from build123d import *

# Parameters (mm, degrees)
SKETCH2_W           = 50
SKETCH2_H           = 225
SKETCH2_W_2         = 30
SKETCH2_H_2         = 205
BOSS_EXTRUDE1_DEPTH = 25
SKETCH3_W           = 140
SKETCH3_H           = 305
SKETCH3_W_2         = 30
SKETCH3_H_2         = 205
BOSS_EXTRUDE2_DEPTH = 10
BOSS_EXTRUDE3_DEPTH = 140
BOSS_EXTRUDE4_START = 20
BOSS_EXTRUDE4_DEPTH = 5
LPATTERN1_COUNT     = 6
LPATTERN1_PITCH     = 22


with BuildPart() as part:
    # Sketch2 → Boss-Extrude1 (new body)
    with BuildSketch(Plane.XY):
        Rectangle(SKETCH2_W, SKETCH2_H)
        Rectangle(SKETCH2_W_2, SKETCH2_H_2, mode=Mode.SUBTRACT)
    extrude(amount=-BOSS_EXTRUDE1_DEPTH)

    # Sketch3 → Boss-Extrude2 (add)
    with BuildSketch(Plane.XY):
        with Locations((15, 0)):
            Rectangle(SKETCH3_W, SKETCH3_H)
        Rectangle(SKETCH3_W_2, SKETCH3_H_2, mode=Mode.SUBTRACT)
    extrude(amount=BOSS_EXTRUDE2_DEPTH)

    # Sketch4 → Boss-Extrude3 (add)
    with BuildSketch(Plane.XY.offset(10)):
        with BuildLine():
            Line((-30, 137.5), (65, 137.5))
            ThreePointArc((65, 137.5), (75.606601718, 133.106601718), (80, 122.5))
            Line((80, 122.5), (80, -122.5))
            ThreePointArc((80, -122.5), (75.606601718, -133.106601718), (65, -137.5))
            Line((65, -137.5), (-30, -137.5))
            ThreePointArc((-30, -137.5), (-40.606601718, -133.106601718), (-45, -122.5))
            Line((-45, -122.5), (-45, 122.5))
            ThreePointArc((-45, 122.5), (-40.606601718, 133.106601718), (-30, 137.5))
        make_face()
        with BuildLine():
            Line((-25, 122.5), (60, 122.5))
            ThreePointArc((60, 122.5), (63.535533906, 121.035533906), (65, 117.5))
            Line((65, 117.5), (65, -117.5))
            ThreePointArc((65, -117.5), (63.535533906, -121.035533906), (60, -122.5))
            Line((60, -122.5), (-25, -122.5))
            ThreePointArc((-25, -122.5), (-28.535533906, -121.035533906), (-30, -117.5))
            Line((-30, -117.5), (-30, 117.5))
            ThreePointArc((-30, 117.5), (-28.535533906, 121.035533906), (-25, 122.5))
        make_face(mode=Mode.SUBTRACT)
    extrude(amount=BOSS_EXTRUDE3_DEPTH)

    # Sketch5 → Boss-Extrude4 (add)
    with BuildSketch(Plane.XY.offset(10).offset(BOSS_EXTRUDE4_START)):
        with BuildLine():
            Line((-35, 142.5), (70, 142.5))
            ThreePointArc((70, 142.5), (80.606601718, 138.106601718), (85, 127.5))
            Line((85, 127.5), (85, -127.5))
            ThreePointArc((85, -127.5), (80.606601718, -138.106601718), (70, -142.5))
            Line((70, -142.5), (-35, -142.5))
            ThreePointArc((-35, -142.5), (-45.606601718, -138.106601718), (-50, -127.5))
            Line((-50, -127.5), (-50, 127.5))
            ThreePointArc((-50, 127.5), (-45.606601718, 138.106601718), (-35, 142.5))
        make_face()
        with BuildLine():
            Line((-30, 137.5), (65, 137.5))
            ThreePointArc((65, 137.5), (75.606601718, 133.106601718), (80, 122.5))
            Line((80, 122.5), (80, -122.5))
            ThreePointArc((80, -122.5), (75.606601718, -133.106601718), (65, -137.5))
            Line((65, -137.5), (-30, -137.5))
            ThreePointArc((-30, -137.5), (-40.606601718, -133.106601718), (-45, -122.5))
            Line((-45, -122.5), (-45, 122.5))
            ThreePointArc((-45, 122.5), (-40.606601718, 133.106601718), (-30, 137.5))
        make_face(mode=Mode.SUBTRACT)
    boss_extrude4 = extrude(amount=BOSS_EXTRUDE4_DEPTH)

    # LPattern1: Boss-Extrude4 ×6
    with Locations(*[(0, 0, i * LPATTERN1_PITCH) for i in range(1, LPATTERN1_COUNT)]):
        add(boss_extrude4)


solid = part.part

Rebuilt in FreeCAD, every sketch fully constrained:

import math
import FreeCAD as App
import Part
import Sketcher
from FreeCAD import Vector


def add_polygon(sketch, points):
    """Adds a closed chain of lines whose ends are joined by coincident constraints."""
    first, n = sketch.GeometryCount, len(points)
    for a, b in zip(points, points[1:] + points[:1]):
        sketch.addGeometry(Part.LineSegment(App.Vector(*a, 0), App.Vector(*b, 0)), False)
    for i in range(n):
        sketch.addConstraint(Sketcher.Constraint("Coincident", first + i, 2, first + (i + 1) % n, 1))

doc = App.newDocument("Part")
body = doc.addObject("PartDesign::Body", "Body")

# Sketch on XY plane
sketch1 = doc.addObject("Sketcher::SketchObject", "Sketch")
body.addObject(sketch1)
sketch1.AttachmentSupport = (doc.XY_Plane, [""])
sketch1.MapMode = "FlatFace"
add_polygon(sketch1, [(-25, 112.5), (-25, -112.5), (25, -112.5), (25, 112.5)])  # lines 0-3
add_polygon(sketch1, [(15, -102.5), (-15, -102.5), (-15, 102.5), (15, 102.5)])  # lines 4-7
sketch1.addConstraint([
    Sketcher.Constraint("Vertical", 0),
    Sketcher.Constraint("Horizontal", 1),
    Sketcher.Constraint("Vertical", 2),
    Sketcher.Constraint("Horizontal", 3),
    Sketcher.Constraint("Horizontal", 4),
    Sketcher.Constraint("Vertical", 5),
    Sketcher.Constraint("Horizontal", 6),
    Sketcher.Constraint("Vertical", 7),
    Sketcher.Constraint("Symmetric", 0, 2, 2, 2, -1, 1),
    Sketcher.Constraint("Symmetric", 4, 2, 6, 2, -1, 1),
    Sketcher.Constraint("DistanceX", 1, 1, 1, 2, 50.0),
    Sketcher.Constraint("DistanceX", 4, 2, 4, 1, 30.0),
    Sketcher.Constraint("DistanceY", 0, 2, 0, 1, 225.0),
    Sketcher.Constraint("DistanceY", 5, 1, 5, 2, 205.0),
])
pad1 = doc.addObject("PartDesign::Pad", "Pad")
body.addObject(pad1)
pad1.Profile = sketch1
pad1.Length = 25
pad1.Reversed = True

# Sketch on XY plane
sketch2 = doc.addObject("Sketcher::SketchObject", "Sketch001")
body.addObject(sketch2)
sketch2.AttachmentSupport = (doc.XY_Plane, [""])
sketch2.MapMode = "FlatFace"
add_polygon(sketch2, [(-55, 152.5), (-55, -152.5), (85, -152.5), (85, 152.5)])  # lines 0-3
add_polygon(sketch2, [(15, -102.5), (-15, -102.5), (-15, 102.5), (15, 102.5)])  # lines 4-7
sketch2.addConstraint([
    Sketcher.Constraint("Vertical", 0),
    Sketcher.Constraint("Horizontal", 1),
    Sketcher.Constraint("Vertical", 2),
    Sketcher.Constraint("Horizontal", 3),
    Sketcher.Constraint("Horizontal", 4),
    Sketcher.Constraint("Vertical", 5),
    Sketcher.Constraint("Horizontal", 6),
    Sketcher.Constraint("Vertical", 7),
    Sketcher.Constraint("Symmetric", 4, 2, 6, 2, -1, 1),
    Sketcher.Constraint("DistanceX", 1, 1, 1, 2, 140.0),
    Sketcher.Constraint("DistanceX", 4, 2, 4, 1, 30.0),
    Sketcher.Constraint("DistanceY", 0, 2, 0, 1, 305.0),
    Sketcher.Constraint("DistanceY", 5, 1, 5, 2, 205.0),
    Sketcher.Constraint("DistanceX", 0, 2, -1, 1, 55.0),
    Sketcher.Constraint("DistanceY", 0, 2, 4, 2, 50.0),
])
pad2 = doc.addObject("PartDesign::Pad", "Pad001")
body.addObject(pad2)
pad2.Profile = sketch2
pad2.Length = 10

# Sketch on XY plane
sketch3 = doc.addObject("Sketcher::SketchObject", "Sketch002")
body.addObject(sketch3)
sketch3.AttachmentSupport = (doc.XY_Plane, [""])
sketch3.MapMode = "FlatFace"
sketch3.AttachmentOffset = App.Placement(Vector(0, 0, 10), App.Rotation())
sketch3.addGeometry([
    Part.LineSegment(Vector(65, 137.5, 0), Vector(-30, 137.5, 0)),  # 0
    Part.ArcOfCircle(Part.Circle(Vector(-30, 122.5, 0), Vector(0, 0, 1), 15), math.radians(90), math.radians(180)),  # 1
    Part.LineSegment(Vector(-45, 122.5, 0), Vector(-45, -122.5, 0)),  # 2
    Part.ArcOfCircle(Part.Circle(Vector(-30, -122.5, 0), Vector(0, 0, 1), 15), math.radians(180), math.radians(270)),  # 3
    Part.LineSegment(Vector(-30, -137.5, 0), Vector(65, -137.5, 0)),  # 4
    Part.ArcOfCircle(Part.Circle(Vector(65, -122.5, 0), Vector(0, 0, 1), 15), math.radians(-90), math.radians(0)),  # 5
    Part.LineSegment(Vector(80, -122.5, 0), Vector(80, 122.5, 0)),  # 6
    Part.ArcOfCircle(Part.Circle(Vector(65, 122.5, 0), Vector(0, 0, 1), 15), math.radians(0), math.radians(90)),  # 7
    Part.LineSegment(Vector(-25, 122.5, 0), Vector(60, 122.5, 0)),  # 8
    Part.ArcOfCircle(Part.Circle(Vector(60, 117.5, 0), Vector(0, 0, 1), 5), math.radians(0), math.radians(90)),  # 9
    Part.LineSegment(Vector(65, 117.5, 0), Vector(65, -117.5, 0)),  # 10
    Part.ArcOfCircle(Part.Circle(Vector(60, -117.5, 0), Vector(0, 0, 1), 5), math.radians(-90), math.radians(0)),  # 11
    Part.LineSegment(Vector(60, -122.5, 0), Vector(-25, -122.5, 0)),  # 12
    Part.ArcOfCircle(Part.Circle(Vector(-25, -117.5, 0), Vector(0, 0, 1), 5), math.radians(180), math.radians(270)),  # 13
    Part.LineSegment(Vector(-30, -117.5, 0), Vector(-30, 117.5, 0)),  # 14
    Part.ArcOfCircle(Part.Circle(Vector(-25, 117.5, 0), Vector(0, 0, 1), 5), math.radians(90), math.radians(180)),  # 15
], False)
sketch3.addConstraint([
    Sketcher.Constraint("Tangent", 0, 2, 1, 1),
    Sketcher.Constraint("Tangent", 1, 2, 2, 1),
    Sketcher.Constraint("Tangent", 2, 2, 3, 1),
    Sketcher.Constraint("Tangent", 3, 2, 4, 1),
    Sketcher.Constraint("Tangent", 4, 2, 5, 1),
    Sketcher.Constraint("Tangent", 5, 2, 6, 1),
    Sketcher.Constraint("Tangent", 6, 2, 7, 1),
    Sketcher.Constraint("Tangent", 7, 2, 0, 1),
    Sketcher.Constraint("Tangent", 8, 2, 9, 2),
    Sketcher.Constraint("Tangent", 9, 1, 10, 1),
    Sketcher.Constraint("Tangent", 10, 2, 11, 2),
    Sketcher.Constraint("Tangent", 11, 1, 12, 1),
    Sketcher.Constraint("Tangent", 12, 2, 13, 2),
    Sketcher.Constraint("Tangent", 13, 1, 14, 1),
    Sketcher.Constraint("Tangent", 14, 2, 15, 2),
    Sketcher.Constraint("Tangent", 15, 1, 8, 1),
    Sketcher.Constraint("Horizontal", 0),
    Sketcher.Constraint("Vertical", 2),
    Sketcher.Constraint("Horizontal", 4),
    Sketcher.Constraint("Vertical", 6),
    Sketcher.Constraint("Horizontal", 8),
    Sketcher.Constraint("Vertical", 10),
    Sketcher.Constraint("Horizontal", 12),
    Sketcher.Constraint("Vertical", 14),
    Sketcher.Constraint("Equal", 1, 3),
    Sketcher.Constraint("Equal", 3, 5),
    Sketcher.Constraint("Equal", 5, 7),
    Sketcher.Constraint("Equal", 9, 11),
    Sketcher.Constraint("Equal", 11, 13),
    Sketcher.Constraint("Equal", 13, 15),
    Sketcher.Constraint("Horizontal", 6, 2, 8, 2),
    Sketcher.Constraint("Horizontal", 5, 2, 11, 1),
    Sketcher.Constraint("Vertical", 7, 2, 9, 1),
    Sketcher.Constraint("Vertical", 3, 2, 13, 1),
    Sketcher.Constraint("Radius", 1, 15.0),
    Sketcher.Constraint("Radius", 9, 5.0),
    Sketcher.Constraint("DistanceX", 0, 2, 0, 1, 95.0),
    Sketcher.Constraint("DistanceY", 2, 2, 2, 1, 245.0),
    Sketcher.Constraint("DistanceX", 1, 3, -1, 1, 30.0),
    Sketcher.Constraint("DistanceY", -1, 1, 1, 3, 122.5),
])
pad3 = doc.addObject("PartDesign::Pad", "Pad002")
body.addObject(pad3)
pad3.Profile = sketch3
pad3.Length = 140

# Sketch on XY plane
sketch4 = doc.addObject("Sketcher::SketchObject", "Sketch003")
body.addObject(sketch4)
sketch4.AttachmentSupport = (doc.XY_Plane, [""])
sketch4.MapMode = "FlatFace"
sketch4.AttachmentOffset = App.Placement(Vector(0, 0, 30), App.Rotation())
sketch4.addGeometry([
    Part.LineSegment(Vector(70, 142.5, 0), Vector(-35, 142.5, 0)),  # 0
    Part.ArcOfCircle(Part.Circle(Vector(-35, 127.5, 0), Vector(0, 0, 1), 15), math.radians(90), math.radians(180)),  # 1
    Part.LineSegment(Vector(-50, 127.5, 0), Vector(-50, -127.5, 0)),  # 2
    Part.ArcOfCircle(Part.Circle(Vector(-35, -127.5, 0), Vector(0, 0, 1), 15), math.radians(180), math.radians(270)),  # 3
    Part.LineSegment(Vector(-35, -142.5, 0), Vector(70, -142.5, 0)),  # 4
    Part.ArcOfCircle(Part.Circle(Vector(70, -127.5, 0), Vector(0, 0, 1), 15), math.radians(-90), math.radians(0)),  # 5
    Part.LineSegment(Vector(85, -127.5, 0), Vector(85, 127.5, 0)),  # 6
    Part.ArcOfCircle(Part.Circle(Vector(70, 127.5, 0), Vector(0, 0, 1), 15), math.radians(0), math.radians(90)),  # 7
    Part.LineSegment(Vector(-30, 137.5, 0), Vector(65, 137.5, 0)),  # 8
    Part.ArcOfCircle(Part.Circle(Vector(65, 122.5, 0), Vector(0, 0, 1), 15), math.radians(0), math.radians(90)),  # 9
    Part.LineSegment(Vector(80, 122.5, 0), Vector(80, -122.5, 0)),  # 10
    Part.ArcOfCircle(Part.Circle(Vector(65, -122.5, 0), Vector(0, 0, 1), 15), math.radians(-90), math.radians(0)),  # 11
    Part.LineSegment(Vector(65, -137.5, 0), Vector(-30, -137.5, 0)),  # 12
    Part.ArcOfCircle(Part.Circle(Vector(-30, -122.5, 0), Vector(0, 0, 1), 15), math.radians(180), math.radians(270)),  # 13
    Part.LineSegment(Vector(-45, -122.5, 0), Vector(-45, 122.5, 0)),  # 14
    Part.ArcOfCircle(Part.Circle(Vector(-30, 122.5, 0), Vector(0, 0, 1), 15), math.radians(90), math.radians(180)),  # 15
], False)
sketch4.addConstraint([
    Sketcher.Constraint("Tangent", 0, 2, 1, 1),
    Sketcher.Constraint("Tangent", 1, 2, 2, 1),
    Sketcher.Constraint("Tangent", 2, 2, 3, 1),
    Sketcher.Constraint("Tangent", 3, 2, 4, 1),
    Sketcher.Constraint("Tangent", 4, 2, 5, 1),
    Sketcher.Constraint("Tangent", 5, 2, 6, 1),
    Sketcher.Constraint("Tangent", 6, 2, 7, 1),
    Sketcher.Constraint("Tangent", 7, 2, 0, 1),
    Sketcher.Constraint("Tangent", 8, 2, 9, 2),
    Sketcher.Constraint("Tangent", 9, 1, 10, 1),
    Sketcher.Constraint("Tangent", 10, 2, 11, 2),
    Sketcher.Constraint("Tangent", 11, 1, 12, 1),
    Sketcher.Constraint("Tangent", 12, 2, 13, 2),
    Sketcher.Constraint("Tangent", 13, 1, 14, 1),
    Sketcher.Constraint("Tangent", 14, 2, 15, 2),
    Sketcher.Constraint("Tangent", 15, 1, 8, 1),
    Sketcher.Constraint("Horizontal", 0),
    Sketcher.Constraint("Vertical", 2),
    Sketcher.Constraint("Horizontal", 4),
    Sketcher.Constraint("Vertical", 6),
    Sketcher.Constraint("Horizontal", 8),
    Sketcher.Constraint("Vertical", 10),
    Sketcher.Constraint("Horizontal", 12),
    Sketcher.Constraint("Vertical", 14),
    Sketcher.Constraint("Equal", 1, 3),
    Sketcher.Constraint("Equal", 3, 5),
    Sketcher.Constraint("Equal", 5, 7),
    Sketcher.Constraint("Equal", 7, 9),
    Sketcher.Constraint("Equal", 9, 11),
    Sketcher.Constraint("Equal", 11, 13),
    Sketcher.Constraint("Equal", 13, 15),
    Sketcher.Constraint("Radius", 1, 15.0),
    Sketcher.Constraint("DistanceX", 0, 2, 0, 1, 105.0),
    Sketcher.Constraint("DistanceX", 8, 1, 8, 2, 95.0),
    Sketcher.Constraint("DistanceY", 2, 2, 2, 1, 255.0),
    Sketcher.Constraint("DistanceY", 10, 2, 10, 1, 245.0),
    Sketcher.Constraint("DistanceX", 1, 3, -1, 1, 35.0),
    Sketcher.Constraint("DistanceX", -1, 1, 9, 3, 65.0),
    Sketcher.Constraint("DistanceY", 9, 3, 7, 3, 5.0),
    Sketcher.Constraint("DistanceY", -1, 1, 1, 3, 127.5),
])
pad4 = doc.addObject("PartDesign::Pad", "Pad003")
body.addObject(pad4)
pad4.Profile = sketch4
pad4.Length = 5
doc.recompute()

linearpattern = doc.addObject("PartDesign::LinearPattern", "LinearPattern")
body.addObject(linearpattern)
linearpattern.Originals = [pad4]
linearpattern.Direction = (doc.Z_Axis, [""])
linearpattern.Mode = "offset"
linearpattern.Offset = 22
linearpattern.Occurrences = 6
body.Tip = linearpattern

doc.recompute()
